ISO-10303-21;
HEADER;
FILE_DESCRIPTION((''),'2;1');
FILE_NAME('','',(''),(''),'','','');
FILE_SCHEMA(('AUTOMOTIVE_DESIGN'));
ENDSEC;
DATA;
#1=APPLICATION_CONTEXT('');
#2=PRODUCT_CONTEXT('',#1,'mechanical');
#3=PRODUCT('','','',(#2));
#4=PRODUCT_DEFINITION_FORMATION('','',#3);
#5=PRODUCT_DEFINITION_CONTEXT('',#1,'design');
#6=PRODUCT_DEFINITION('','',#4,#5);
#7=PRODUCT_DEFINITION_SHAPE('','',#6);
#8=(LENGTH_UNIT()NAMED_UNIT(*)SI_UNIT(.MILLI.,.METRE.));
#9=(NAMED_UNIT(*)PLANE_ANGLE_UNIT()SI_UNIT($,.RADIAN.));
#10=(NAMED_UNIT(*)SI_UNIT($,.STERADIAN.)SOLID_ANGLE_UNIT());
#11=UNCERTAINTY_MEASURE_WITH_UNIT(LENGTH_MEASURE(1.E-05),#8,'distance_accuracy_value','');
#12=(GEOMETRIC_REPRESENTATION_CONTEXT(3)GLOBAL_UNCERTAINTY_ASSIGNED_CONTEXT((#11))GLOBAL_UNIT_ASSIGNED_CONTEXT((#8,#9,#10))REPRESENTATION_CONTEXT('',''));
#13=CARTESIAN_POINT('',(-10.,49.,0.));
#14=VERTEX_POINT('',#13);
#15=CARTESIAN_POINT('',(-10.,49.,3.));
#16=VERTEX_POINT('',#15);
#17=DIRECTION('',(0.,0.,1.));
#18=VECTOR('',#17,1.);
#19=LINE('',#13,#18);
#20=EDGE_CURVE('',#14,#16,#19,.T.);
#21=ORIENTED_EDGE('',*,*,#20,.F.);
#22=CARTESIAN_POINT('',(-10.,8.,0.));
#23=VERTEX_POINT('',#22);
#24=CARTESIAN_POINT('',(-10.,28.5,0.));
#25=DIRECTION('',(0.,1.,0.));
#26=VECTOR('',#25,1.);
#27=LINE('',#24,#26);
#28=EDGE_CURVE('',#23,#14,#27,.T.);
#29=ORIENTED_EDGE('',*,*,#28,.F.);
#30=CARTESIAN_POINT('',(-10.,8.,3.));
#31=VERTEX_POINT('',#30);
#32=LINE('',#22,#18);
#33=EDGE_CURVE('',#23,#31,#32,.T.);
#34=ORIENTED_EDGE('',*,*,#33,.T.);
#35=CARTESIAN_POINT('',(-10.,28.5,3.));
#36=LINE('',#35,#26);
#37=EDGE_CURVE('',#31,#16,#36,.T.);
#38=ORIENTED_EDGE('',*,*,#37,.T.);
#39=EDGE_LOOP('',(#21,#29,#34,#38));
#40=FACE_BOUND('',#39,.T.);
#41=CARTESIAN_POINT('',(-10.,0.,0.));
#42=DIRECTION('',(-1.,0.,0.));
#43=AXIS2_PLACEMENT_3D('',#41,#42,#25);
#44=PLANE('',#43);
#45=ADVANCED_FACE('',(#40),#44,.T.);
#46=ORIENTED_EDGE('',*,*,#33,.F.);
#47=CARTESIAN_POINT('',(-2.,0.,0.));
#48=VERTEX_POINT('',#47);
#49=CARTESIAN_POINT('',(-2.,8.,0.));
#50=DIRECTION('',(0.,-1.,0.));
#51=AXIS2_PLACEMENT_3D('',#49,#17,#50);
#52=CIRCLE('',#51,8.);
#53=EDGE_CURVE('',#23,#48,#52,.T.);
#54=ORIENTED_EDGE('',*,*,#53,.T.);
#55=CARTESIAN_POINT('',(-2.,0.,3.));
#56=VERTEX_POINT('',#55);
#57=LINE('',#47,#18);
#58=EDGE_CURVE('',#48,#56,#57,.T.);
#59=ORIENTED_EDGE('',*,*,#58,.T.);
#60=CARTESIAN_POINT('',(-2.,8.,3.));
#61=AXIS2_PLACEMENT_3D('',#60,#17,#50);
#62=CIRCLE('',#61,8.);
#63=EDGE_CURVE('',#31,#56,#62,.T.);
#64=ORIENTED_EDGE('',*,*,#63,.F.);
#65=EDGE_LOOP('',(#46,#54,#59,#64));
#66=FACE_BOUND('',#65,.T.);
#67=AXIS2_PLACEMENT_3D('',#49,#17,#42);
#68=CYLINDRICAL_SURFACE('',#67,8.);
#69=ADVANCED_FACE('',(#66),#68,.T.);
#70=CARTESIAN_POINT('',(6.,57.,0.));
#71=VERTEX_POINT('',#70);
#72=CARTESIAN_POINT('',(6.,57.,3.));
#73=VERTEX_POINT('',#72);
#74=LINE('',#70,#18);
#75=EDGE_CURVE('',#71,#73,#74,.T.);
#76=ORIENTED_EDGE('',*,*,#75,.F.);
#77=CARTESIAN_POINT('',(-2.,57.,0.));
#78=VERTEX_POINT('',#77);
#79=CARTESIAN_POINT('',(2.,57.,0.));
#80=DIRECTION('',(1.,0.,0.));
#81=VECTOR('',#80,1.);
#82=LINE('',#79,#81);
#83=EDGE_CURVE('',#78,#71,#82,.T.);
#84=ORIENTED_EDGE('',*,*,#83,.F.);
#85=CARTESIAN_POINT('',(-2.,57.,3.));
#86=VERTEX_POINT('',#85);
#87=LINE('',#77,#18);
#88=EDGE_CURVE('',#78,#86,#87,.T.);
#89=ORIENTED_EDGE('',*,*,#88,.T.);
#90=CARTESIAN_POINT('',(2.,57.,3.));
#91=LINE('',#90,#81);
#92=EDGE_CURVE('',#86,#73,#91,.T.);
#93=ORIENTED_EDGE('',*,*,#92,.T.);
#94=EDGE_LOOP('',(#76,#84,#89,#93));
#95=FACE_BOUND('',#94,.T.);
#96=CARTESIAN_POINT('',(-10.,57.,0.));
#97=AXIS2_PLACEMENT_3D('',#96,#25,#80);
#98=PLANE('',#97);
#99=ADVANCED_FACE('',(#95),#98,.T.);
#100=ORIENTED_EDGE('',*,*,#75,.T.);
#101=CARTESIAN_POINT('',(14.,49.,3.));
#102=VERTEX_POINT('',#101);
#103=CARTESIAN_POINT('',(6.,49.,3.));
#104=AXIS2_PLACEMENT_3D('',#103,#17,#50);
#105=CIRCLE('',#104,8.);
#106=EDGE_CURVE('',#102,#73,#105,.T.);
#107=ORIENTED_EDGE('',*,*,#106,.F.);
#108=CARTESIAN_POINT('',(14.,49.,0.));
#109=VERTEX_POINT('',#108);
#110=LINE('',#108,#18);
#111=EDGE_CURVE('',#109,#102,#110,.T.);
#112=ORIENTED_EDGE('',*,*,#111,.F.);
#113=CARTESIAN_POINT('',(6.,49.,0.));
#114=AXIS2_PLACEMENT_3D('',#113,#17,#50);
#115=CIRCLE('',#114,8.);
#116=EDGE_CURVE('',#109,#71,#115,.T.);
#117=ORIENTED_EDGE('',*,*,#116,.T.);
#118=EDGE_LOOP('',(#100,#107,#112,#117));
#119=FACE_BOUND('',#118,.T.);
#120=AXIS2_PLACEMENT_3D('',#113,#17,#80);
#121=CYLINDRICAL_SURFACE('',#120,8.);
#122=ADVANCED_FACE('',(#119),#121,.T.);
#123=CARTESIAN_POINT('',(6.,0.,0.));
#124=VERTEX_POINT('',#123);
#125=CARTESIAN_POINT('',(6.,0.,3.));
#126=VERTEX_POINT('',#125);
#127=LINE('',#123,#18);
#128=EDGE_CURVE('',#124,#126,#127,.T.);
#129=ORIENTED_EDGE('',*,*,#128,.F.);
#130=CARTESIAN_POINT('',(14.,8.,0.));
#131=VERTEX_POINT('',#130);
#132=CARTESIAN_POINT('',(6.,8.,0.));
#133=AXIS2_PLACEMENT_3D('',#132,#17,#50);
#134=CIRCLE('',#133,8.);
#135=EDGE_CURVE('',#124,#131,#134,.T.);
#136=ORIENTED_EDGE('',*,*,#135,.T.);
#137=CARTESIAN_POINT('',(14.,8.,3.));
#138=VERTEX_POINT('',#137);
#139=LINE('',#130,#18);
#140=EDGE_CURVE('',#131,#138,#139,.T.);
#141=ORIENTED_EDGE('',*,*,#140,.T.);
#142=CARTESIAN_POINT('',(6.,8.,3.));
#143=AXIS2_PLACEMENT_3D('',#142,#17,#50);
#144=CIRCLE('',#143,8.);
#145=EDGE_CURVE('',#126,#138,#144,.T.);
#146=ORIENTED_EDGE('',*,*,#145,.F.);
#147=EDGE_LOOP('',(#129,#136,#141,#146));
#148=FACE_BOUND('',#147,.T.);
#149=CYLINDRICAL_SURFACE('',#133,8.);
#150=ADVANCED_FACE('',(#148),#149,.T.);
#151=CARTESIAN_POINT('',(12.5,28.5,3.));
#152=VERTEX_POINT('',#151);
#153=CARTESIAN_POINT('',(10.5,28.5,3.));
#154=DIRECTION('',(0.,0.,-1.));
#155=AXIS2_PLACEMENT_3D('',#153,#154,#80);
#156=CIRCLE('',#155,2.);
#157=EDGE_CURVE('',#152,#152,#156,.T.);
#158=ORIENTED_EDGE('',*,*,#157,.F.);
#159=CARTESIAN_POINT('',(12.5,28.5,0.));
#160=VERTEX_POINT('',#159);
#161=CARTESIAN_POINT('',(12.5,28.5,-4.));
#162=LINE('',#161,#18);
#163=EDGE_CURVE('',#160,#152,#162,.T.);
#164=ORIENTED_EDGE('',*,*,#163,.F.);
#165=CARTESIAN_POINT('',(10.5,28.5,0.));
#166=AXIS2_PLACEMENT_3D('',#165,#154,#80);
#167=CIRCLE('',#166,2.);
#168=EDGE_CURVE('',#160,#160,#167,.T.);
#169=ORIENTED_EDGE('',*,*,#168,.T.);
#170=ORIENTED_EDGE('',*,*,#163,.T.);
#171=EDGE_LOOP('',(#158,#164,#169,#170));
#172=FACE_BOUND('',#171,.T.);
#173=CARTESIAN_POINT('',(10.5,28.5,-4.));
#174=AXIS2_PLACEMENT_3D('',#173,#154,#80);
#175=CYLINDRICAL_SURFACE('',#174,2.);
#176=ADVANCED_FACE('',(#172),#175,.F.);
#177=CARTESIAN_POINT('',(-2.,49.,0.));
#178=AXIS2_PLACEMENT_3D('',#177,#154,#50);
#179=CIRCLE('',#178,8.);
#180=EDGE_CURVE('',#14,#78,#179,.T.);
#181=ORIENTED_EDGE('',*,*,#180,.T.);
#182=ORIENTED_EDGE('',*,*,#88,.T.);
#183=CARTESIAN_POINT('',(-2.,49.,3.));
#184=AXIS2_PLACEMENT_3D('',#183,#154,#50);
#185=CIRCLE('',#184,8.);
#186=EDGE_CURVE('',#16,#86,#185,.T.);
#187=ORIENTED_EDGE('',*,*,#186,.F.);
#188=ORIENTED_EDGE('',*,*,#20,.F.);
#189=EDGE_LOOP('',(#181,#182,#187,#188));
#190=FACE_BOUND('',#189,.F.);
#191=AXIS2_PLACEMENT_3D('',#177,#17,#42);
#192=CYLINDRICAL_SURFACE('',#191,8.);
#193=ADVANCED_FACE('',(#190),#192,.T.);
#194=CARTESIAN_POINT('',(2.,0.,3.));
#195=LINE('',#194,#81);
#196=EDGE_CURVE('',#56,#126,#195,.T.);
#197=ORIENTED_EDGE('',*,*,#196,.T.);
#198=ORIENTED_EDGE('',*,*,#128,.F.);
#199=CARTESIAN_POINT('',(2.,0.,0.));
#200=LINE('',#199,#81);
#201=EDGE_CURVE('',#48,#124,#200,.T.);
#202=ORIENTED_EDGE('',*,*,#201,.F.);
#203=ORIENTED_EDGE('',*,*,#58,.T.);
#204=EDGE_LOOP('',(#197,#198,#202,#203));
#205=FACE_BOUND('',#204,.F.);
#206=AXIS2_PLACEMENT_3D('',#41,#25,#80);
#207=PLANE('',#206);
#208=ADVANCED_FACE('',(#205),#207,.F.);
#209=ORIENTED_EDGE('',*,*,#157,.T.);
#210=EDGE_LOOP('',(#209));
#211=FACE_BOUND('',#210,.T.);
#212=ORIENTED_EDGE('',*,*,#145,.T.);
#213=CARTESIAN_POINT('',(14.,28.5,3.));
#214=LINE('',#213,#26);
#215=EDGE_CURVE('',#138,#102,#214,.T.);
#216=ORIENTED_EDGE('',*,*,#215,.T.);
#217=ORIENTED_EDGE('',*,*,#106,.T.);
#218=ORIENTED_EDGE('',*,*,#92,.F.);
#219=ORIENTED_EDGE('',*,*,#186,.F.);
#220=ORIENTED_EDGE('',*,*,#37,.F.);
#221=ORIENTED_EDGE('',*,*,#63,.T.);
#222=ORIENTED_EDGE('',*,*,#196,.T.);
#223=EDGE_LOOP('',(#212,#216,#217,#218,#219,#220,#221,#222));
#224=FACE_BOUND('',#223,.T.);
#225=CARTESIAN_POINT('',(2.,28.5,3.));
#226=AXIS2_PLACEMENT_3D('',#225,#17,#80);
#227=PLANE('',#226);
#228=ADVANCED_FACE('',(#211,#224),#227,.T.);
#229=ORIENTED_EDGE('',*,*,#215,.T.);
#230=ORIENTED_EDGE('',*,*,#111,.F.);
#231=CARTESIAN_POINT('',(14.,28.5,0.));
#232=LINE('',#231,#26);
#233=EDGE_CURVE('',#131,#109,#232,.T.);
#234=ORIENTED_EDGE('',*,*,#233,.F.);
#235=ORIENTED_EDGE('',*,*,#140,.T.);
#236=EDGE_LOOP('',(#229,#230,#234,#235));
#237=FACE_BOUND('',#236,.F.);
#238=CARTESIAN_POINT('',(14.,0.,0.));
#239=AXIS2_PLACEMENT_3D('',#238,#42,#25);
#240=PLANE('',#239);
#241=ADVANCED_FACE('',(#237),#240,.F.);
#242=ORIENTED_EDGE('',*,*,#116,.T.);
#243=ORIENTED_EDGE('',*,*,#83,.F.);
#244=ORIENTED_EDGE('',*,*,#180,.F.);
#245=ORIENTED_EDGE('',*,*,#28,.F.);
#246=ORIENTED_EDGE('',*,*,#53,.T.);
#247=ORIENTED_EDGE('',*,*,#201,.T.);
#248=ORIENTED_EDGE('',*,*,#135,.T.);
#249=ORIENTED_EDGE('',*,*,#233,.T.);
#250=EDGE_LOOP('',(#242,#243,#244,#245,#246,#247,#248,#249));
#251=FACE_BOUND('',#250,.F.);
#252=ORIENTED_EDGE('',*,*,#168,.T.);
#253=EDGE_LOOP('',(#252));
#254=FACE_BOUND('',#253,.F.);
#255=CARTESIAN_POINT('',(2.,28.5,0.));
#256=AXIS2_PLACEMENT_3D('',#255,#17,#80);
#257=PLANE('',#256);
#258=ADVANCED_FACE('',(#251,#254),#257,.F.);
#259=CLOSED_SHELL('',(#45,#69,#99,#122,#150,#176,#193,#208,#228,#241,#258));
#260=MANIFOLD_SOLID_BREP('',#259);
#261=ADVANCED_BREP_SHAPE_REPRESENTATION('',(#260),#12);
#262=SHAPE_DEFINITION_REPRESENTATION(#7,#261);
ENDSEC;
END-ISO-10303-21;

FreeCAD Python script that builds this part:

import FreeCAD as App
import Part
import Sketcher
from FreeCAD import Vector


def edges_at(feature, points):
    """Names of the edges that pass closest to the given points."""
    edges = feature.Shape.Edges
    near = lambda p: min(range(len(edges)), key=lambda i: edges[i].distToShape(Part.Vertex(*p))[0])
    return sorted({f"Edge{near(p) + 1}" for p in points})

doc = App.newDocument("Part")
body = doc.addObject("PartDesign::Body", "Body")

# Sketch on XY plane
sketch1 = body.newObject("Sketcher::SketchObject", "Sketch")
sketch1.AttachmentSupport = (doc.getObject("XY_Plane"), [""])
sketch1.MapMode = "FlatFace"
sketch1.AttachmentOffset = App.Placement(Vector(0, 0, -4), App.Rotation())
sketch1.addGeometry(Part.Circle(Vector(10.5, 28.5, 0), Vector(0, 0, 1), 2), False)
sketch1.addConstraint([
    Sketcher.Constraint("Diameter", 0, 4.0),
    Sketcher.Constraint("DistanceX", -1, 1, 0, 3, 10.5),
    Sketcher.Constraint("DistanceY", -1, 1, 0, 3, 28.5),
])
pad1 = body.newObject("PartDesign::Pad", "Pad")
pad1.Profile = sketch1
pad1.Length = 10
body2 = doc.addObject("PartDesign::Body", "Body001")

# Sketch on XY plane
sketch2 = body2.newObject("Sketcher::SketchObject", "Sketch001")
sketch2.AttachmentSupport = (doc.getObject("XY_Plane001"), [""])
sketch2.MapMode = "FlatFace"
sketch2.addGeometry([
    Part.LineSegment(Vector(-10, 57, 0), Vector(-10, 0, 0)),
    Part.LineSegment(Vector(-10, 0, 0), Vector(14, 0, 0)),
    Part.LineSegment(Vector(14, 0, 0), Vector(14, 57, 0)),
    Part.LineSegment(Vector(14, 57, 0), Vector(-10, 57, 0)),
], False)
sketch2.addConstraint([
    Sketcher.Constraint("Coincident", 0, 2, 1, 1),
    Sketcher.Constraint("Coincident", 1, 2, 2, 1),
    Sketcher.Constraint("Coincident", 2, 2, 3, 1),
    Sketcher.Constraint("Coincident", 3, 2, 0, 1),
    Sketcher.Constraint("Vertical", 0),
    Sketcher.Constraint("Horizontal", 1),
    Sketcher.Constraint("Vertical", 2),
    Sketcher.Constraint("Horizontal", 3),
    Sketcher.Constraint("PointOnObject", 0, 2, -1),
    Sketcher.Constraint("DistanceX", 1, 1, 1, 2, 24.0),
    Sketcher.Constraint("DistanceY", 0, 2, 0, 1, 57.0),
    Sketcher.Constraint("DistanceX", 0, 2, -1, 1, 10.0),
])
pad2 = body2.newObject("PartDesign::Pad", "Pad001")
pad2.Profile = sketch2
pad2.Length = 3
doc.recompute()

fillet = body2.newObject("PartDesign::Fillet", "Fillet")
fillet.Base = (pad2, edges_at(pad2, [
    (-10, 0, 1.5),
    (-10, 57, 1.5),
    (14, 0, 1.5),
    (14, 57, 1.5),
]))
fillet.Radius = 8
doc.recompute()

boolean = body2.newObject("PartDesign::Boolean", "Boolean")
boolean.Type = "Cut"
boolean.addObjects([body])

doc.recompute()
